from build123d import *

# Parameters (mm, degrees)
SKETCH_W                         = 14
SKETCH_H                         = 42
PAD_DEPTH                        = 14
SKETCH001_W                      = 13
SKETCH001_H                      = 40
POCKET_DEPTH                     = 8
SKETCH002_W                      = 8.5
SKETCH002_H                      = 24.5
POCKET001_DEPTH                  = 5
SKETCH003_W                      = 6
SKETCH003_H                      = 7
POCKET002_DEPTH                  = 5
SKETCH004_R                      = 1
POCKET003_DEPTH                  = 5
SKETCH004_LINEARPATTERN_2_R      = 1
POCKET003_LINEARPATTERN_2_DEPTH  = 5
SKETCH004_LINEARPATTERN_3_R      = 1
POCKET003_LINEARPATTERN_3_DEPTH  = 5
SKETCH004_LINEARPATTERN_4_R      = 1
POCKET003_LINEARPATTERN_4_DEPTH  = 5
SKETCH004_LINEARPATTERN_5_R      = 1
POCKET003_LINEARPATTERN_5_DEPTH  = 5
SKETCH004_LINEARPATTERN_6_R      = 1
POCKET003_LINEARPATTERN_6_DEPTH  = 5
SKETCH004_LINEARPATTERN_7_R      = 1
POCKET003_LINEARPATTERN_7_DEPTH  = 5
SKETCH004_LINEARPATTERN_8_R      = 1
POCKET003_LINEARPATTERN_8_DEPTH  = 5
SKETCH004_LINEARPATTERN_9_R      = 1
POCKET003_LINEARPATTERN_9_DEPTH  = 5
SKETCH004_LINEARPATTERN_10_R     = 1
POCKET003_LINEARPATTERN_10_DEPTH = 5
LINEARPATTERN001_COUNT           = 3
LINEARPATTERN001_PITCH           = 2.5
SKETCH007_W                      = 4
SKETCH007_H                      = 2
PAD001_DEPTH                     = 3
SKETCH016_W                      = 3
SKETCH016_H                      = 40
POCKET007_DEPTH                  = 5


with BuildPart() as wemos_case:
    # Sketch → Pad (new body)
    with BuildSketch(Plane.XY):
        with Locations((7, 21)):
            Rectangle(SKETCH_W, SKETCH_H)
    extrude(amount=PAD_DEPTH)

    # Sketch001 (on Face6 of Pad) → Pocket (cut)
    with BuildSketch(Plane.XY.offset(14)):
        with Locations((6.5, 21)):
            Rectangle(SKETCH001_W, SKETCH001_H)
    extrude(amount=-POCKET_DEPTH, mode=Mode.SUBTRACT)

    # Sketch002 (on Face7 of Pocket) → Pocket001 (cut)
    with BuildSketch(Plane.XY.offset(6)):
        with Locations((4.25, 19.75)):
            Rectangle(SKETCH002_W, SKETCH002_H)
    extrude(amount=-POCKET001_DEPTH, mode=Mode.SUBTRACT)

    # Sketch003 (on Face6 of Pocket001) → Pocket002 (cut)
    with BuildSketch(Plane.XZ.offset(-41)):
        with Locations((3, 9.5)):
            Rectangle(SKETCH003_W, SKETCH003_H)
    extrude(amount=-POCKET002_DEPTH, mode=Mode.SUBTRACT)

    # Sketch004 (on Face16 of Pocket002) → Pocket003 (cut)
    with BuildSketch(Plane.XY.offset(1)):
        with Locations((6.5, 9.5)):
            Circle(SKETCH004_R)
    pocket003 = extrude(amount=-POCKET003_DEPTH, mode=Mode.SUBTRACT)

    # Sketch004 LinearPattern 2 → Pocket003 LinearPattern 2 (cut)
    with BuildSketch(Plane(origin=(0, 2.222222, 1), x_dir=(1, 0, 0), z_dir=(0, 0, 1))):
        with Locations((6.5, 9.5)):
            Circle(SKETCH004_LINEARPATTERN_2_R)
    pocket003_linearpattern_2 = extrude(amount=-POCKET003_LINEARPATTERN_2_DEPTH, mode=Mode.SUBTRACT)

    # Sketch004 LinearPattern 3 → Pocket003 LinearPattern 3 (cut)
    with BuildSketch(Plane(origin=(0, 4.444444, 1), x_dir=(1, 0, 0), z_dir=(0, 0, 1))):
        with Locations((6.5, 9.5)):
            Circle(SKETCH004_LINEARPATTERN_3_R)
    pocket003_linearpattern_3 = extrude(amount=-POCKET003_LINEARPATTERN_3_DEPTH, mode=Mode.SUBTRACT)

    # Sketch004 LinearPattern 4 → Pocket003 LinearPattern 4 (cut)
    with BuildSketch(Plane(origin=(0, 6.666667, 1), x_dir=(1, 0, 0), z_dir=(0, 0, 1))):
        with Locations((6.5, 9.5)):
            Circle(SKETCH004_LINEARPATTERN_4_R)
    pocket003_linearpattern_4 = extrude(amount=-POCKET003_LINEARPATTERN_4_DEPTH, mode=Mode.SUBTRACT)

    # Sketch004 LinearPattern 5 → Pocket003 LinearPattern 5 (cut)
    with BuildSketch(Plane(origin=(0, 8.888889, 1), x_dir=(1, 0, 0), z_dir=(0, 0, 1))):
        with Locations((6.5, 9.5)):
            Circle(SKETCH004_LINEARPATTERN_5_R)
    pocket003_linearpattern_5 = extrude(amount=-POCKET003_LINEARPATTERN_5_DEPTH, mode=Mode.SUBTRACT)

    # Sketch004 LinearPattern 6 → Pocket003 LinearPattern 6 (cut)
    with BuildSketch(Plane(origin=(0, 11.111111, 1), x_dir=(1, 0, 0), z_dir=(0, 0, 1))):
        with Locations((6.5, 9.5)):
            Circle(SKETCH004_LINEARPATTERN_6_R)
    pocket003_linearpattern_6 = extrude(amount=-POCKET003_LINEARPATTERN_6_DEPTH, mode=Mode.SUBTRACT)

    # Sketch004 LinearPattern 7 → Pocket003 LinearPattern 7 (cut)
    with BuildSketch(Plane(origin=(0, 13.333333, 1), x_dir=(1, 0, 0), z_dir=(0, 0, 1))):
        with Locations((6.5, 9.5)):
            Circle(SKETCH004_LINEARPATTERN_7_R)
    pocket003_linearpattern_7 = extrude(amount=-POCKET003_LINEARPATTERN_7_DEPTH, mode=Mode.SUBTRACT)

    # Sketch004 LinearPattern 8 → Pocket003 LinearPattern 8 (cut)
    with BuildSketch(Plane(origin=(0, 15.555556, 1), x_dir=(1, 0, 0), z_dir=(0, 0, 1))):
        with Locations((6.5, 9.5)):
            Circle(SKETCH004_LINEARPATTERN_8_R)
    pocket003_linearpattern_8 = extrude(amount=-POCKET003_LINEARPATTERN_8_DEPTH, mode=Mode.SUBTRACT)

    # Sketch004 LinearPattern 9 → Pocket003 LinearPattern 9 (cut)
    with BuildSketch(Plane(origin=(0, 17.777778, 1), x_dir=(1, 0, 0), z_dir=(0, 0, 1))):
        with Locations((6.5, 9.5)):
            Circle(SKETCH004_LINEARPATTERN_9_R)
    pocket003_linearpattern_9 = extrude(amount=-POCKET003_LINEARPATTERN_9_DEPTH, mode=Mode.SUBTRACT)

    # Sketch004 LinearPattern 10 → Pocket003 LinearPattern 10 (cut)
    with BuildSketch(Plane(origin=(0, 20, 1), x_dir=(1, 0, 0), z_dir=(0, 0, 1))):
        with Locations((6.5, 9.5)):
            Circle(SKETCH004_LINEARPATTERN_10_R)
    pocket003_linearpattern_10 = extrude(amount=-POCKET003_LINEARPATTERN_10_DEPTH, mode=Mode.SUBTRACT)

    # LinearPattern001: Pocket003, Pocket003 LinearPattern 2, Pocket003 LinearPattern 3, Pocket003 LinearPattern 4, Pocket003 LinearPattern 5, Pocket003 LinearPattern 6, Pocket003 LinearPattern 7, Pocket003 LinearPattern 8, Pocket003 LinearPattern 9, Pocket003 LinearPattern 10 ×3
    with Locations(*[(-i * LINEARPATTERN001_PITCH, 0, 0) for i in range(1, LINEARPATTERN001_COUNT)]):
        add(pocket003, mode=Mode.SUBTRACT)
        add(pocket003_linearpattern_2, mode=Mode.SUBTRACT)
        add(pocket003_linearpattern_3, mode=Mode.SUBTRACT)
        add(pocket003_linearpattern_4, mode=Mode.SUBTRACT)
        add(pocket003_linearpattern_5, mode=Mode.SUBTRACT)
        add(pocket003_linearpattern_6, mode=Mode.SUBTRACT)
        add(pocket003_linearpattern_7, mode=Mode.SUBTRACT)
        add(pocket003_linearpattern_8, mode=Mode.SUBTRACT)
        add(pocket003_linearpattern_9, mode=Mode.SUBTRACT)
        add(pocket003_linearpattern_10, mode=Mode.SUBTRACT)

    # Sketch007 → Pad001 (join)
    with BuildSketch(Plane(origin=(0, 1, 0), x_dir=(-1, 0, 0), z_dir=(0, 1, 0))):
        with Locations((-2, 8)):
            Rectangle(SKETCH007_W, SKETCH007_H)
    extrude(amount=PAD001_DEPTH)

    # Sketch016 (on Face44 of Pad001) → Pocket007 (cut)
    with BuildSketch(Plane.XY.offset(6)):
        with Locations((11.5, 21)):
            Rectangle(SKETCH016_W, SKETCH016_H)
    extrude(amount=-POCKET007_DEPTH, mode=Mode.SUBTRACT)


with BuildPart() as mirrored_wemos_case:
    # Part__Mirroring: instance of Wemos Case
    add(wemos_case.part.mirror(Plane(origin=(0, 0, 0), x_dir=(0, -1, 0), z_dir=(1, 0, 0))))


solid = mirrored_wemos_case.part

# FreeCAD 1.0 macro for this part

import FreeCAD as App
import Part
import Sketcher

V = App.Vector

doc = App.newDocument("Part")
body = doc.addObject("PartDesign::Body", "Body")

# Sketch on XY plane
sketch1 = doc.addObject("Sketcher::SketchObject", "Sketch")
body.addObject(sketch1)
sketch1.AttachmentSupport = (doc.XY_Plane, [""])
sketch1.MapMode = "FlatFace"
sketch1.addGeometry([
    Part.LineSegment(V(0, 42, 0), V(0, 0, 0)),
    Part.LineSegment(V(0, 0, 0), V(14, 0, 0)),
    Part.LineSegment(V(14, 0, 0), V(14, 42, 0)),
    Part.LineSegment(V(14, 42, 0), V(0, 42, 0)),
], False)
sketch1.addConstraint([
    Sketcher.Constraint("Coincident", 0, 2, 1, 1),
    Sketcher.Constraint("Coincident", 1, 2, 2, 1),
    Sketcher.Constraint("Coincident", 2, 2, 3, 1),
    Sketcher.Constraint("Coincident", 3, 2, 0, 1),
    Sketcher.Constraint("Vertical", 0),
    Sketcher.Constraint("Horizontal", 1),
    Sketcher.Constraint("Vertical", 2),
    Sketcher.Constraint("Horizontal", 3),
    Sketcher.Constraint("Coincident", 0, 2, -1, 1),
    Sketcher.Constraint("DistanceX", 1, 1, 1, 2, 14.0),
    Sketcher.Constraint("DistanceY", 0, 2, 0, 1, 42.0),
])
pad1 = doc.addObject("PartDesign::Pad", "Pad")
body.addObject(pad1)
pad1.Profile = sketch1
pad1.Length = 14

# Sketch on XY plane
sketch2 = doc.addObject("Sketcher::SketchObject", "Sketch001")
body.addObject(sketch2)
sketch2.AttachmentSupport = (doc.XY_Plane, [""])
sketch2.MapMode = "FlatFace"
sketch2.AttachmentOffset = App.Placement(V(0, 0, 14), App.Rotation())
sketch2.addGeometry([
    Part.LineSegment(V(0, 41, 0), V(0, 1, 0)),
    Part.LineSegment(V(0, 1, 0), V(13, 1, 0)),
    Part.LineSegment(V(13, 1, 0), V(13, 41, 0)),
    Part.LineSegment(V(13, 41, 0), V(0, 41, 0)),
], False)
sketch2.addConstraint([
    Sketcher.Constraint("Coincident", 0, 2, 1, 1),
    Sketcher.Constraint("Coincident", 1, 2, 2, 1),
    Sketcher.Constraint("Coincident", 2, 2, 3, 1),
    Sketcher.Constraint("Coincident", 3, 2, 0, 1),
    Sketcher.Constraint("Vertical", 0),
    Sketcher.Constraint("Horizontal", 1),
    Sketcher.Constraint("Vertical", 2),
    Sketcher.Constraint("Horizontal", 3),
    Sketcher.Constraint("PointOnObject", 0, 2, -2),
    Sketcher.Constraint("DistanceX", 1, 1, 1, 2, 13.0),
    Sketcher.Constraint("DistanceY", 0, 2, 0, 1, 40.0),
    Sketcher.Constraint("DistanceY", -1, 1, 0, 2, 1.0),
])
pocket1 = doc.addObject("PartDesign::Pocket", "Pocket")
body.addObject(pocket1)
pocket1.Profile = sketch2
pocket1.Length = 8

# Sketch on XY plane
sketch3 = doc.addObject("Sketcher::SketchObject", "Sketch002")
body.addObject(sketch3)
sketch3.AttachmentSupport = (doc.XY_Plane, [""])
sketch3.MapMode = "FlatFace"
sketch3.AttachmentOffset = App.Placement(V(0, 0, 6), App.Rotation())
sketch3.addGeometry([
    Part.LineSegment(V(0, 32, 0), V(0, 8, 0)),
    Part.LineSegment(V(0, 8, 0), V(8, 8, 0)),
    Part.LineSegment(V(8, 8, 0), V(8, 32, 0)),
    Part.LineSegment(V(8, 32, 0), V(0, 32, 0)),
], False)
sketch3.addConstraint([
    Sketcher.Constraint("Coincident", 0, 2, 1, 1),
    Sketcher.Constraint("Coincident", 1, 2, 2, 1),
    Sketcher.Constraint("Coincident", 2, 2, 3, 1),
    Sketcher.Constraint("Coincident", 3, 2, 0, 1),
    Sketcher.Constraint("Vertical", 0),
    Sketcher.Constraint("Horizontal", 1),
    Sketcher.Constraint("Vertical", 2),
    Sketcher.Constraint("Horizontal", 3),
    Sketcher.Constraint("PointOnObject", 0, 2, -2),
    Sketcher.Constraint("DistanceX", 1, 1, 1, 2, 8.5),
    Sketcher.Constraint("DistanceY", 0, 2, 0, 1, 24.5),
    Sketcher.Constraint("DistanceY", -1, 1, 2, 2, 32.0),
])
pocket2 = doc.addObject("PartDesign::Pocket", "Pocket001")
body.addObject(pocket2)
pocket2.Profile = sketch3
pocket2.Length = 5

# Sketch on XZ plane
sketch4 = doc.addObject("Sketcher::SketchObject", "Sketch003")
body.addObject(sketch4)
sketch4.AttachmentSupport = (doc.XZ_Plane, [""])
sketch4.MapMode = "FlatFace"
sketch4.AttachmentOffset = App.Placement(V(0, 0, -41), App.Rotation())
sketch4.addGeometry([
    Part.LineSegment(V(0, 13, 0), V(0, 6, 0)),
    Part.LineSegment(V(0, 6, 0), V(6, 6, 0)),
    Part.LineSegment(V(6, 6, 0), V(6, 13, 0)),
    Part.LineSegment(V(6, 13, 0), V(0, 13, 0)),
], False)
sketch4.addConstraint([
    Sketcher.Constraint("Coincident", 0, 2, 1, 1),
    Sketcher.Constraint("Coincident", 1, 2, 2, 1),
    Sketcher.Constraint("Coincident", 2, 2, 3, 1),
    Sketcher.Constraint("Coincident", 3, 2, 0, 1),
    Sketcher.Constraint("Vertical", 0),
    Sketcher.Constraint("Horizontal", 1),
    Sketcher.Constraint("Vertical", 2),
    Sketcher.Constraint("Horizontal", 3),
    Sketcher.Constraint("PointOnObject", 0, 2, -2),
    Sketcher.Constraint("DistanceX", 1, 1, 1, 2, 6.0),
    Sketcher.Constraint("DistanceY", 0, 2, 0, 1, 7.0),
    Sketcher.Constraint("DistanceY", -1, 1, 0, 2, 6.0),
])
pocket3 = doc.addObject("PartDesign::Pocket", "Pocket002")
body.addObject(pocket3)
pocket3.Profile = sketch4
pocket3.Length = 5

# Sketch on XY plane
sketch5 = doc.addObject("Sketcher::SketchObject", "Sketch004")
body.addObject(sketch5)
sketch5.AttachmentSupport = (doc.XY_Plane, [""])
sketch5.MapMode = "FlatFace"
sketch5.AttachmentOffset = App.Placement(V(0, 0, 1), App.Rotation())
sketch5.addGeometry(Part.Circle(V(6.5, 9.5, 0), V(0, 0, 1), 1), False)
sketch5.addConstraint([
    Sketcher.Constraint("Diameter", 0, 2.0),
    Sketcher.Constraint("DistanceX", -1, 1, 0, 3, 6.5),
    Sketcher.Constraint("DistanceY", -1, 1, 0, 3, 9.5),
])
pocket4 = doc.addObject("PartDesign::Pocket", "Pocket003")
body.addObject(pocket4)
pocket4.Profile = sketch5
pocket4.Length = 5

# Sketch on XY plane
sketch6 = doc.addObject("Sketcher::SketchObject", "Sketch005")
body.addObject(sketch6)
sketch6.AttachmentSupport = (doc.XY_Plane, [""])
sketch6.MapMode = "FlatFace"
sketch6.AttachmentOffset = App.Placement(V(0, 0, 1), App.Rotation())
sketch6.addGeometry(Part.Circle(V(6.5, 11.7, 0), V(0, 0, 1), 1), False)
sketch6.addConstraint([
    Sketcher.Constraint("Diameter", 0, 2.0),
    Sketcher.Constraint("DistanceX", -1, 1, 0, 3, 6.5),
    Sketcher.Constraint("DistanceY", -1, 1, 0, 3, 11.722222),
])
pocket5 = doc.addObject("PartDesign::Pocket", "Pocket004")
body.addObject(pocket5)
pocket5.Profile = sketch6
pocket5.Length = 5

# Sketch on XY plane
sketch7 = doc.addObject("Sketcher::SketchObject", "Sketch006")
body.addObject(sketch7)
sketch7.AttachmentSupport = (doc.XY_Plane, [""])
sketch7.MapMode = "FlatFace"
sketch7.AttachmentOffset = App.Placement(V(0, 0, 1), App.Rotation())
sketch7.addGeometry(Part.Circle(V(6.5, 13.9, 0), V(0, 0, 1), 1), False)
sketch7.addConstraint([
    Sketcher.Constraint("Diameter", 0, 2.0),
    Sketcher.Constraint("DistanceX", -1, 1, 0, 3, 6.5),
    Sketcher.Constraint("DistanceY", -1, 1, 0, 3, 13.944444),
])
pocket6 = doc.addObject("PartDesign::Pocket", "Pocket005")
body.addObject(pocket6)
pocket6.Profile = sketch7
pocket6.Length = 5

# Sketch on XY plane
sketch8 = doc.addObject("Sketcher::SketchObject", "Sketch007")
body.addObject(sketch8)
sketch8.AttachmentSupport = (doc.XY_Plane, [""])
sketch8.MapMode = "FlatFace"
sketch8.AttachmentOffset = App.Placement(V(0, 0, 1), App.Rotation())
sketch8.addGeometry(Part.Circle(V(6.5, 16.2, 0), V(0, 0, 1), 1), False)
sketch8.addConstraint([
    Sketcher.Constraint("Diameter", 0, 2.0),
    Sketcher.Constraint("DistanceX", -1, 1, 0, 3, 6.5),
    Sketcher.Constraint("DistanceY", -1, 1, 0, 3, 16.166667),
])
pocket7 = doc.addObject("PartDesign::Pocket", "Pocket006")
body.addObject(pocket7)
pocket7.Profile = sketch8
pocket7.Length = 5

# Sketch on XY plane
sketch9 = doc.addObject("Sketcher::SketchObject", "Sketch008")
body.addObject(sketch9)
sketch9.AttachmentSupport = (doc.XY_Plane, [""])
sketch9.MapMode = "FlatFace"
sketch9.AttachmentOffset = App.Placement(V(0, 0, 1), App.Rotation())
sketch9.addGeometry(Part.Circle(V(6.5, 18.4, 0), V(0, 0, 1), 1), False)
sketch9.addConstraint([
    Sketcher.Constraint("Diameter", 0, 2.0),
    Sketcher.Constraint("DistanceX", -1, 1, 0, 3, 6.5),
    Sketcher.Constraint("DistanceY", -1, 1, 0, 3, 18.388889),
])
pocket8 = doc.addObject("PartDesign::Pocket", "Pocket007")
body.addObject(pocket8)
pocket8.Profile = sketch9
pocket8.Length = 5

# Sketch on XY plane
sketch10 = doc.addObject("Sketcher::SketchObject", "Sketch009")
body.addObject(sketch10)
sketch10.AttachmentSupport = (doc.XY_Plane, [""])
sketch10.MapMode = "FlatFace"
sketch10.AttachmentOffset = App.Placement(V(0, 0, 1), App.Rotation())
sketch10.addGeometry(Part.Circle(V(6.5, 20.6, 0), V(0, 0, 1), 1), False)
sketch10.addConstraint([
    Sketcher.Constraint("Diameter", 0, 2.0),
    Sketcher.Constraint("DistanceX", -1, 1, 0, 3, 6.5),
    Sketcher.Constraint("DistanceY", -1, 1, 0, 3, 20.611111),
])
pocket9 = doc.addObject("PartDesign::Pocket", "Pocket008")
body.addObject(pocket9)
pocket9.Profile = sketch10
pocket9.Length = 5

# Sketch on XY plane
sketch11 = doc.addObject("Sketcher::SketchObject", "Sketch010")
body.addObject(sketch11)
sketch11.AttachmentSupport = (doc.XY_Plane, [""])
sketch11.MapMode = "FlatFace"
sketch11.AttachmentOffset = App.Placement(V(0, 0, 1), App.Rotation())
sketch11.addGeometry(Part.Circle(V(6.5, 22.8, 0), V(0, 0, 1), 1), False)
sketch11.addConstraint([
    Sketcher.Constraint("Diameter", 0, 2.0),
    Sketcher.Constraint("DistanceX", -1, 1, 0, 3, 6.5),
    Sketcher.Constraint("DistanceY", -1, 1, 0, 3, 22.833333),
])
pocket10 = doc.addObject("PartDesign::Pocket", "Pocket009")
body.addObject(pocket10)
pocket10.Profile = sketch11
pocket10.Length = 5

# Sketch on XY plane
sketch12 = doc.addObject("Sketcher::SketchObject", "Sketch011")
body.addObject(sketch12)
sketch12.AttachmentSupport = (doc.XY_Plane, [""])
sketch12.MapMode = "FlatFace"
sketch12.AttachmentOffset = App.Placement(V(0, 0, 1), App.Rotation())
sketch12.addGeometry(Part.Circle(V(6.5, 25.1, 0), V(0, 0, 1), 1), False)
sketch12.addConstraint([
    Sketcher.Constraint("Diameter", 0, 2.0),
    Sketcher.Constraint("DistanceX", -1, 1, 0, 3, 6.5),
    Sketcher.Constraint("DistanceY", -1, 1, 0, 3, 25.055556),
])
pocket11 = doc.addObject("PartDesign::Pocket", "Pocket010")
body.addObject(pocket11)
pocket11.Profile = sketch12
pocket11.Length = 5

# Sketch on XY plane
sketch13 = doc.addObject("Sketcher::SketchObject", "Sketch012")
body.addObject(sketch13)
sketch13.AttachmentSupport = (doc.XY_Plane, [""])
sketch13.MapMode = "FlatFace"
sketch13.AttachmentOffset = App.Placement(V(0, 0, 1), App.Rotation())
sketch13.addGeometry(Part.Circle(V(6.5, 27.3, 0), V(0, 0, 1), 1), False)
sketch13.addConstraint([
    Sketcher.Constraint("Diameter", 0, 2.0),
    Sketcher.Constraint("DistanceX", -1, 1, 0, 3, 6.5),
    Sketcher.Constraint("DistanceY", -1, 1, 0, 3, 27.277778),
])
pocket12 = doc.addObject("PartDesign::Pocket", "Pocket011")
body.addObject(pocket12)
pocket12.Profile = sketch13
pocket12.Length = 5

# Sketch on XY plane
sketch14 = doc.addObject("Sketcher::SketchObject", "Sketch013")
body.addObject(sketch14)
sketch14.AttachmentSupport = (doc.XY_Plane, [""])
sketch14.MapMode = "FlatFace"
sketch14.AttachmentOffset = App.Placement(V(0, 0, 1), App.Rotation())
sketch14.addGeometry(Part.Circle(V(6.5, 29.5, 0), V(0, 0, 1), 1), False)
sketch14.addConstraint([
    Sketcher.Constraint("Diameter", 0, 2.0),
    Sketcher.Constraint("DistanceX", -1, 1, 0, 3, 6.5),
    Sketcher.Constraint("DistanceY", -1, 1, 0, 3, 29.5),
])
pocket13 = doc.addObject("PartDesign::Pocket", "Pocket012")
body.addObject(pocket13)
pocket13.Profile = sketch14
pocket13.Length = 5
doc.recompute()

linearpattern = doc.addObject("PartDesign::LinearPattern", "LinearPattern")
body.addObject(linearpattern)
linearpattern.Originals = [pocket4, pocket5, pocket6, pocket7, pocket8, pocket9, pocket10, pocket11, pocket12, pocket13]
linearpattern.Direction = (doc.X_Axis, [""])
linearpattern.Mode = "offset"
linearpattern.Offset = 2.5
linearpattern.Occurrences = 3
linearpattern.Reversed = True
body.Tip = linearpattern

# Sketch on XZ plane
sketch15 = doc.addObject("Sketcher::SketchObject", "Sketch014")
body.addObject(sketch15)
sketch15.AttachmentSupport = (doc.XZ_Plane, [""])
sketch15.MapMode = "FlatFace"
sketch15.AttachmentOffset = App.Placement(V(0, 0, -1), App.Rotation())
sketch15.addGeometry([
    Part.LineSegment(V(4, 9, 0), V(4, 7, 0)),
    Part.LineSegment(V(4, 7, 0), V(0, 7, 0)),
    Part.LineSegment(V(0, 7, 0), V(0, 9, 0)),
    Part.LineSegment(V(0, 9, 0), V(4, 9, 0)),
], False)
sketch15.addConstraint([
    Sketcher.Constraint("Coincident", 0, 2, 1, 1),
    Sketcher.Constraint("Coincident", 1, 2, 2, 1),
    Sketcher.Constraint("Coincident", 2, 2, 3, 1),
    Sketcher.Constraint("Coincident", 3, 2, 0, 1),
    Sketcher.Constraint("Vertical", 0),
    Sketcher.Constraint("Horizontal", 1),
    Sketcher.Constraint("Vertical", 2),
    Sketcher.Constraint("Horizontal", 3),
    Sketcher.Constraint("PointOnObject", 1, 2, -2),
    Sketcher.Constraint("DistanceX", 1, 2, 1, 1, 4.0),
    Sketcher.Constraint("DistanceY", 0, 2, 0, 1, 2.0),
    Sketcher.Constraint("DistanceY", -1, 1, 0, 2, 7.0),
])
pad2 = doc.addObject("PartDesign::Pad", "Pad001")
body.addObject(pad2)
pad2.Profile = sketch15
pad2.Length = 3
pad2.Reversed = True

# Sketch on XY plane
sketch16 = doc.addObject("Sketcher::SketchObject", "Sketch015")
body.addObject(sketch16)
sketch16.AttachmentSupport = (doc.XY_Plane, [""])
sketch16.MapMode = "FlatFace"
sketch16.AttachmentOffset = App.Placement(V(0, 0, 6), App.Rotation())
sketch16.addGeometry([
    Part.LineSegment(V(10, 41, 0), V(10, 1, 0)),
    Part.LineSegment(V(10, 1, 0), V(13, 1, 0)),
    Part.LineSegment(V(13, 1, 0), V(13, 41, 0)),
    Part.LineSegment(V(13, 41, 0), V(10, 41, 0)),
], False)
sketch16.addConstraint([
    Sketcher.Constraint("Coincident", 0, 2, 1, 1),
    Sketcher.Constraint("Coincident", 1, 2, 2, 1),
    Sketcher.Constraint("Coincident", 2, 2, 3, 1),
    Sketcher.Constraint("Coincident", 3, 2, 0, 1),
    Sketcher.Constraint("Vertical", 0),
    Sketcher.Constraint("Horizontal", 1),
    Sketcher.Constraint("Vertical", 2),
    Sketcher.Constraint("Horizontal", 3),
    Sketcher.Constraint("DistanceX", 1, 1, 1, 2, 3.0),
    Sketcher.Constraint("DistanceY", 0, 2, 0, 1, 40.0),
    Sketcher.Constraint("DistanceX", -1, 1, 0, 2, 10.0),
    Sketcher.Constraint("DistanceY", -1, 1, 0, 2, 1.0),
])
pocket14 = doc.addObject("PartDesign::Pocket", "Pocket013")
body.addObject(pocket14)
pocket14.Profile = sketch16
pocket14.Length = 5
body2 = doc.addObject("PartDesign::Body", "Body001")
doc.recompute()

mirroring = doc.addObject("Part::Mirroring", "Mirroring")
mirroring.Source = body
mirroring.Base = V(0, 0, 0)
mirroring.Normal = V(1, 0, 0)
body2.BaseFeature = mirroring
doc.recompute()
body.Visibility = False
mirroring.Visibility = False

doc.recompute()
